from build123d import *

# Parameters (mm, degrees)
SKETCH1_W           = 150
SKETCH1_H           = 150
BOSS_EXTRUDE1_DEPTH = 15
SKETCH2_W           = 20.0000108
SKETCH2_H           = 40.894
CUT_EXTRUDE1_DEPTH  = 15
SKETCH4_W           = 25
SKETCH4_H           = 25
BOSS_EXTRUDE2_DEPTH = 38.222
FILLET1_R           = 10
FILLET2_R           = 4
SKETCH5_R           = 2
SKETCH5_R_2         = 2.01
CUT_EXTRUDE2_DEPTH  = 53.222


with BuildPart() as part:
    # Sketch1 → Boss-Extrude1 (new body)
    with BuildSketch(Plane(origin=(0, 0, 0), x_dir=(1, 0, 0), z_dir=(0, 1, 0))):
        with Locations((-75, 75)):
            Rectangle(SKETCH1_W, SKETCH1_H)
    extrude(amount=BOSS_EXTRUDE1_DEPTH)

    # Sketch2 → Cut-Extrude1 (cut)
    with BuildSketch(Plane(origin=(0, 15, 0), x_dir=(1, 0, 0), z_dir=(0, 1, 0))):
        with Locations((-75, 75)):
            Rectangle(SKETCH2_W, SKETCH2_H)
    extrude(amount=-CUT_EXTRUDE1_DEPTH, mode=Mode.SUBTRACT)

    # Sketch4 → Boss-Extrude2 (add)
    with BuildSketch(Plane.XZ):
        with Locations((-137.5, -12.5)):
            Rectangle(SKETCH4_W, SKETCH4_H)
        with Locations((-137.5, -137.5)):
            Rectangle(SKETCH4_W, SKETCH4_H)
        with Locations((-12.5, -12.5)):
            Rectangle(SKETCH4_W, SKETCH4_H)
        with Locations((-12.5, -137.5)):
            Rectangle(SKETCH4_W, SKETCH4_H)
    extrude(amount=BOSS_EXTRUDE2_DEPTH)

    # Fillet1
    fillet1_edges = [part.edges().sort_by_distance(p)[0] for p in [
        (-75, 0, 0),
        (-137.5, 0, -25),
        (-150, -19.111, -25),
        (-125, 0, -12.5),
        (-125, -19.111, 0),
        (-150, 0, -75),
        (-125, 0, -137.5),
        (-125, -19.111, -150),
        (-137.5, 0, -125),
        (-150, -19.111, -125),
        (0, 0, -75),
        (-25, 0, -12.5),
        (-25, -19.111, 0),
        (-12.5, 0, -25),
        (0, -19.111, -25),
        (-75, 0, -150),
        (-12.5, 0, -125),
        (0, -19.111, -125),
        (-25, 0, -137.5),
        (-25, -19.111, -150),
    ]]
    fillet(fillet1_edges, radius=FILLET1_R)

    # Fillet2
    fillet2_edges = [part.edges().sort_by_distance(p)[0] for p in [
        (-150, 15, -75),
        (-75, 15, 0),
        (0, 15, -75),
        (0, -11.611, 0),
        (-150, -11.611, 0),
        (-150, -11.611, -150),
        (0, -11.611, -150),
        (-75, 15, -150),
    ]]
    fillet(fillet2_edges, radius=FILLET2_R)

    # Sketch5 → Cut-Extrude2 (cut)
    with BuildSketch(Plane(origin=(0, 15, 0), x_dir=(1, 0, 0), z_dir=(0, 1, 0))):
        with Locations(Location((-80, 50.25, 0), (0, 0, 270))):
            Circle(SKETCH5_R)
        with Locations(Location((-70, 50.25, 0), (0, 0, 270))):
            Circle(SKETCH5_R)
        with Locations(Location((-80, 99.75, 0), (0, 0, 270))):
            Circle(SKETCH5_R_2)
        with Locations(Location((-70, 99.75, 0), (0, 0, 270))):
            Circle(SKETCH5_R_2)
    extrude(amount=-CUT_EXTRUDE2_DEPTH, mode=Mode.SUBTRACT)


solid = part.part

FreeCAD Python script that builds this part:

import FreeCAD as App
import Part
import Sketcher
Q = App.Units.Quantity


def edges_at(feature, points):
    """Names of the edges that pass closest to the given points."""
    edges = feature.Shape.Edges
    near = lambda p: min(range(len(edges)), key=lambda i: edges[i].distToShape(Part.Vertex(*p))[0])
    return sorted({f"Edge{near(p) + 1}" for p in points})


def add_polygon(sketch, points):
    """Adds a closed chain of lines whose ends are joined by coincident constraints."""
    first, n = sketch.GeometryCount, len(points)
    for a, b in zip(points, points[1:] + points[:1]):
        sketch.addGeometry(Part.LineSegment(App.Vector(*a, 0), App.Vector(*b, 0)), False)
    for i in range(n):
        sketch.addConstraint(Sketcher.Constraint("Coincident", first + i, 2, first + (i + 1) % n, 1))

doc = App.newDocument("Part")
body = doc.addObject("PartDesign::Body", "Body")

# Sketch on XZ plane
sketch1 = body.newObject("Sketcher::SketchObject", "Sketch")
sketch1.AttachmentSupport = (doc.getObject("XZ_Plane"), [""])
sketch1.MapMode = "FlatFace"
add_polygon(sketch1, [(-150, -150), (-150, 0), (0, 0), (0, -150)])  # lines 0-3
sketch1.addConstraint([
    Sketcher.Constraint("Vertical", 0),
    Sketcher.Constraint("Horizontal", 1),
    Sketcher.Constraint("Vertical", 2),
    Sketcher.Constraint("Horizontal", 3),
    Sketcher.Constraint("Coincident", 1, 2, -1, 1),
    Sketcher.Constraint("Equal", 3, 0),
    Sketcher.Constraint("DistanceX", 1, 1, 1, 2, Q("150 mm")),
])
pad1 = body.newObject("PartDesign::Pad", "Pad")
pad1.Profile = sketch1
pad1.Length = 15
pad1.Reversed = True

# Sketch on XZ plane
sketch2 = body.newObject("Sketcher::SketchObject", "Sketch001")
sketch2.AttachmentSupport = (doc.getObject("XZ_Plane"), [""])
sketch2.MapMode = "FlatFace"
sketch2.AttachmentOffset = App.Placement(App.Vector(0, 0, -15), App.Rotation())
add_polygon(sketch2, [(-85, -95), (-85, -55), (-65, -55), (-65, -95)])  # lines 0-3
sketch2.addConstraint([
    Sketcher.Constraint("Vertical", 0),
    Sketcher.Constraint("Horizontal", 1),
    Sketcher.Constraint("Vertical", 2),
    Sketcher.Constraint("Horizontal", 3),
    Sketcher.Constraint("DistanceY", 0, 1, 0, 2, Q("40.894 mm")),
    Sketcher.Constraint("DistanceY", 0, 2, -1, 1, Q("54.553 mm")),
    Sketcher.Constraint("DistanceX", 1, 1, 1, 2, Q("20.000011 mm")),
    Sketcher.Constraint("DistanceX", 0, 2, -1, 1, Q("85.000005 mm")),
])
pocket1 = body.newObject("PartDesign::Pocket", "Pocket")
pocket1.Profile = sketch2
pocket1.Length = 15
pocket1.Reversed = True

# Sketch on XZ plane
sketch3 = body.newObject("Sketcher::SketchObject", "Sketch002")
sketch3.AttachmentSupport = (doc.getObject("XZ_Plane"), [""])
sketch3.MapMode = "FlatFace"
add_polygon(sketch3, [(-150, 0), (-150, -25), (-125, -25), (-125, 0)])  # lines 0-3
add_polygon(sketch3, [(-150, -125), (-150, -150), (-125, -150), (-125, -125)])  # lines 4-7
add_polygon(sketch3, [(-25, 0), (-25, -25), (0, -25), (0, 0)])  # lines 8-11
add_polygon(sketch3, [(-25, -125), (-25, -150), (0, -150), (0, -125)])  # lines 12-15
sketch3.addConstraint([
    Sketcher.Constraint("Vertical", 0),
    Sketcher.Constraint("Horizontal", 1),
    Sketcher.Constraint("Vertical", 2),
    Sketcher.Constraint("Horizontal", 3),
    Sketcher.Constraint("Vertical", 4),
    Sketcher.Constraint("Horizontal", 5),
    Sketcher.Constraint("Vertical", 6),
    Sketcher.Constraint("Horizontal", 7),
    Sketcher.Constraint("Vertical", 8),
    Sketcher.Constraint("Horizontal", 9),
    Sketcher.Constraint("Vertical", 10),
    Sketcher.Constraint("Horizontal", 11),
    Sketcher.Constraint("Vertical", 12),
    Sketcher.Constraint("Horizontal", 13),
    Sketcher.Constraint("Vertical", 14),
    Sketcher.Constraint("Horizontal", 15),
    Sketcher.Constraint("Coincident", 10, 2, -1, 1),
    Sketcher.Constraint("PointOnObject", 2, 2, -1),
    Sketcher.Constraint("PointOnObject", 13, 2, -2),
    Sketcher.Constraint("Horizontal", 1, 2, 8, 2),
    Sketcher.Constraint("Horizontal", 5, 2, 12, 2),
    Sketcher.Constraint("Horizontal", 7, 2, 14, 2),
    Sketcher.Constraint("Vertical", 3, 2, 4, 2),
    Sketcher.Constraint("Vertical", 2, 2, 5, 2),
    Sketcher.Constraint("Vertical", 11, 2, 12, 2),
    Sketcher.Constraint("Equal", 7, 9),
    Sketcher.Constraint("Equal", 15, 0),
    Sketcher.Constraint("Equal", 2, 4),
    Sketcher.Constraint("DistanceX", 1, 1, 1, 2, Q("25 mm")),
    Sketcher.Constraint("DistanceX", 0, 2, -1, 1, Q("150 mm")),
    Sketcher.Constraint("DistanceY", 4, 2, -1, 1, Q("150 mm")),
])
pad2 = body.newObject("PartDesign::Pad", "Pad001")
pad2.Profile = sketch3
pad2.Length = 38.222
doc.recompute()

fillet = body.newObject("PartDesign::Fillet", "Fillet")
fillet.Base = (pad2, edges_at(pad2, [
    (-75, 0, 0),
    (-137.5, 0, -25),
    (-150, -19.111, -25),
    (-125, 0, -12.5),
    (-125, -19.111, 0),
    (-150, 0, -75),
    (-125, 0, -137.5),
    (-125, -19.111, -150),
    (-137.5, 0, -125),
    (-150, -19.111, -125),
    (0, 0, -75),
    (-25, 0, -12.5),
    (-25, -19.111, 0),
    (-12.5, 0, -25),
    (0, -19.111, -25),
    (-75, 0, -150),
    (-12.5, 0, -125),
    (0, -19.111, -125),
    (-25, 0, -137.5),
    (-25, -19.111, -150),
]))
fillet.Radius = 10
doc.recompute()

fillet2 = body.newObject("PartDesign::Fillet", "Fillet001")
fillet2.Base = (fillet, edges_at(fillet, [
    (-150, 15, -75),
    (-75, 15, 0),
    (0, 15, -75),
    (0, -11.611, 0),
    (-150, -11.611, 0),
    (-150, -11.611, -150),
    (0, -11.611, -150),
    (-75, 15, -150),
]))
fillet2.Radius = 4

# Sketch on XZ plane
sketch4 = body.newObject("Sketcher::SketchObject", "Sketch003")
sketch4.AttachmentSupport = (doc.getObject("XZ_Plane"), [""])
sketch4.MapMode = "FlatFace"
sketch4.AttachmentOffset = App.Placement(App.Vector(0, 0, -15), App.Rotation())
sketch4.addGeometry([
    Part.Circle(App.Vector(-80, -50.2, 0), App.Vector(0, 0, 1), 2),
    Part.Circle(App.Vector(-70, -50.2, 0), App.Vector(0, 0, 1), 2),
    Part.Circle(App.Vector(-80, -99.8, 0), App.Vector(0, 0, 1), 2),
    Part.Circle(App.Vector(-70, -99.8, 0), App.Vector(0, 0, 1), 2),
], False)
sketch4.addConstraint([
    Sketcher.Constraint("Equal", 0, 1),
    Sketcher.Constraint("Equal", 2, 3),
    Sketcher.Constraint("Horizontal", 0, 3, 1, 3),
    Sketcher.Constraint("Horizontal", 2, 3, 3, 3),
    Sketcher.Constraint("Vertical", 0, 3, 2, 3),
    Sketcher.Constraint("Vertical", 1, 3, 3, 3),
    Sketcher.Constraint("Diameter", 0, Q("4 mm")),
    Sketcher.Constraint("Diameter", 2, Q("4.02 mm")),
    Sketcher.Constraint("DistanceX", 0, 3, -1, 1, Q("80 mm")),
    Sketcher.Constraint("DistanceX", 1, 3, -1, 1, Q("70 mm")),
    Sketcher.Constraint("DistanceY", 2, 3, 0, 3, Q("49.5 mm")),
    Sketcher.Constraint("DistanceY", 0, 3, -1, 1, Q("50.25 mm")),
])
pocket2 = body.newObject("PartDesign::Pocket", "Pocket001")
pocket2.Profile = sketch4
pocket2.Length = 53.222
pocket2.Reversed = True

doc.recompute()
